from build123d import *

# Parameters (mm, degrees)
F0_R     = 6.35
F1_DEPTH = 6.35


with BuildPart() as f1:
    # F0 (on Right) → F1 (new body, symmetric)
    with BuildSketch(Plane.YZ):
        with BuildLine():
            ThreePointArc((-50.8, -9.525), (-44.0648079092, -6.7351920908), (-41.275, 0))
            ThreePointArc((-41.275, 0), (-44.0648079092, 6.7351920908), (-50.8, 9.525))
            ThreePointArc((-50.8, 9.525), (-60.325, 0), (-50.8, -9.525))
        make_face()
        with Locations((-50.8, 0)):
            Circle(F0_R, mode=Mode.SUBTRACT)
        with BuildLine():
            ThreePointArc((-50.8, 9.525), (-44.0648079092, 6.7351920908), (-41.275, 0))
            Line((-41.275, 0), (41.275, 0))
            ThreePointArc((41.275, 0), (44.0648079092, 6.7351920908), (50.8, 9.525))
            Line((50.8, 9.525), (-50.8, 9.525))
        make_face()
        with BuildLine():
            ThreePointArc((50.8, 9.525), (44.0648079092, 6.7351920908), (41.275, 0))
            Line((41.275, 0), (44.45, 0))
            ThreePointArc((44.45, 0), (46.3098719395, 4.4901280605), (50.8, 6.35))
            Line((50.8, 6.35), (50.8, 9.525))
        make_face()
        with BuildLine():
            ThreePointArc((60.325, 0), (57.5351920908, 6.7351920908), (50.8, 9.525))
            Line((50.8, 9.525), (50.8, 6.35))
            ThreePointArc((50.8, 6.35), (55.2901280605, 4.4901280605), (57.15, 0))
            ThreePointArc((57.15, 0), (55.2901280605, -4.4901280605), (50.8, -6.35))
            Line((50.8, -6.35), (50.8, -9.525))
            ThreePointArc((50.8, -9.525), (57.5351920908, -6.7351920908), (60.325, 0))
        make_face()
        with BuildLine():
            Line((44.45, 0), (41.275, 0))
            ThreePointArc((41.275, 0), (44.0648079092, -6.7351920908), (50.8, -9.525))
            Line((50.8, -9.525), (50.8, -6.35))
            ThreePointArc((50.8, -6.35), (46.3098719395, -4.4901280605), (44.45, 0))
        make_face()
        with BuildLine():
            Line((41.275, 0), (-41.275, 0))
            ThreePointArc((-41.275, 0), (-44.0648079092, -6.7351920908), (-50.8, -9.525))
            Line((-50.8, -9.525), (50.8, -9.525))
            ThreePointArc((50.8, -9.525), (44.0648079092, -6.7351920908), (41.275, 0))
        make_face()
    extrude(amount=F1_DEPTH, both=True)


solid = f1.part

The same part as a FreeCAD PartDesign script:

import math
import FreeCAD as App
import Part
import Sketcher
Q = App.Units.Quantity

doc = App.newDocument("Part")
body = doc.addObject("PartDesign::Body", "Body")

sketch1 = body.newObject("Sketcher::SketchObject", "Sketch")
sketch1.AttachmentSupport = (doc.getObject("YZ_Plane"), [""])
sketch1.MapMode = "FlatFace"
sketch1.addGeometry(Part.ArcOfCircle(Part.Circle(App.Vector(-51, 0, 0), App.Vector(0, 0, 1), 10), math.radians(90), math.radians(270)), False)
sketch1.addGeometry(Part.LineSegment(App.Vector(-51, -10, 0), App.Vector(51, -10, 0)), False)
sketch1.addGeometry(Part.ArcOfCircle(Part.Circle(App.Vector(51, 0, 0), App.Vector(0, 0, 1), 10), math.radians(-90), math.radians(0)), False)
sketch1.addGeometry(Part.ArcOfCircle(Part.Circle(App.Vector(51, 0, 0), App.Vector(0, 0, 1), 10), math.radians(0), math.radians(90)), False)
sketch1.addGeometry(Part.LineSegment(App.Vector(51, 10, 0), App.Vector(-51, 10, 0)), False)
sketch1.addGeometry(Part.ArcOfCircle(Part.Circle(App.Vector(51, 0, 0), App.Vector(0, 0, 1), 6), math.radians(90), math.radians(180)), False)
sketch1.addGeometry(Part.ArcOfCircle(Part.Circle(App.Vector(51, 0, 0), App.Vector(0, 0, 1), 6), math.radians(0), math.radians(90)), False)
sketch1.addGeometry(Part.ArcOfCircle(Part.Circle(App.Vector(51, 0, 0), App.Vector(0, 0, 1), 6), math.radians(-90), math.radians(0)), False)
sketch1.addGeometry(Part.ArcOfCircle(Part.Circle(App.Vector(51, 0, 0), App.Vector(0, 0, 1), 6), math.radians(180), math.radians(270)), False)
sketch1.addGeometry(Part.Circle(App.Vector(-51, 0, 0), App.Vector(0, 0, 1), 6), False)
sketch1.addConstraint(Sketcher.Constraint("Tangent", 0, 2, 1, 1))
sketch1.addConstraint(Sketcher.Constraint("Tangent", 1, 2, 2, 1))
sketch1.addConstraint(Sketcher.Constraint("Tangent", 2, 2, 3, 1))
sketch1.addConstraint(Sketcher.Constraint("Tangent", 3, 2, 4, 1))
sketch1.addConstraint(Sketcher.Constraint("Tangent", 4, 2, 0, 1))
sketch1.addConstraint(Sketcher.Constraint("Tangent", 5, 1, 6, 2))
sketch1.addConstraint(Sketcher.Constraint("Tangent", 6, 1, 7, 2))
sketch1.addConstraint(Sketcher.Constraint("Tangent", 7, 1, 8, 2))
sketch1.addConstraint(Sketcher.Constraint("Tangent", 8, 1, 5, 2))
sketch1.addConstraint(Sketcher.Constraint("Horizontal", 1))
sketch1.addConstraint(Sketcher.Constraint("Horizontal", 4))
sketch1.addConstraint(Sketcher.Constraint("Coincident", 5, 3, 2, 3))
sketch1.addConstraint(Sketcher.Constraint("Coincident", 9, 3, 0, 3))
sketch1.addConstraint(Sketcher.Constraint("Equal", 0, 2))
sketch1.addConstraint(Sketcher.Constraint("Equal", 5, 6))
sketch1.addConstraint(Sketcher.Constraint("Equal", 8, 9))
sketch1.addConstraint(Sketcher.Constraint("Symmetric", 0, 3, 2, 3, -1, 1))
sketch1.addConstraint(Sketcher.Constraint("PointOnObject", 2, 2, -1))
sketch1.addConstraint(Sketcher.Constraint("PointOnObject", 6, 1, -1))
sketch1.addConstraint(Sketcher.Constraint("PointOnObject", 8, 1, -1))
sketch1.addConstraint(Sketcher.Constraint("Vertical", 3, 2, 5, 1))
sketch1.addConstraint(Sketcher.Constraint("Vertical", 5, 1, 7, 1))
sketch1.addConstraint(Sketcher.Constraint("Diameter", 9, Q("0.5 in")))
sketch1.addConstraint(Sketcher.Constraint("DistanceX", 1, 1, 1, 2, Q("4 in")))
sketch1.addConstraint(Sketcher.Constraint("Radius", 0, Q("0.375 in")))
pad1 = body.newObject("PartDesign::Pad", "Pad")
pad1.Profile = sketch1
pad1.Length = Q("0.5 in")
pad1.Midplane = True

doc.recompute()
